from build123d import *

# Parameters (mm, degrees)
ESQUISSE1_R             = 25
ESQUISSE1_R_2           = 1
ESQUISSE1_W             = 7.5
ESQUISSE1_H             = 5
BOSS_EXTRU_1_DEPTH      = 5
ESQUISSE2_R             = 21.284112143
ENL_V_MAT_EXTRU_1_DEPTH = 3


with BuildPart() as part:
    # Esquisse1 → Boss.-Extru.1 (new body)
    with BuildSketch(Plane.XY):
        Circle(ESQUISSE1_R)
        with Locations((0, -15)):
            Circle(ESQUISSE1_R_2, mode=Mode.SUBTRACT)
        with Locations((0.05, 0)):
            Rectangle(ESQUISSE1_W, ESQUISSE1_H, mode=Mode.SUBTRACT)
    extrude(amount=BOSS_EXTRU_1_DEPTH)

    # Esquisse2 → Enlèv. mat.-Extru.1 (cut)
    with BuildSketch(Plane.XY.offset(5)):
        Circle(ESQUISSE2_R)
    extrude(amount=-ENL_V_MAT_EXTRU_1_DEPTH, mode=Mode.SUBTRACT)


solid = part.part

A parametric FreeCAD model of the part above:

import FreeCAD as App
import Part
import Sketcher
from FreeCAD import Vector
Q = App.Units.Quantity

doc = App.newDocument("Part")
body = doc.addObject("PartDesign::Body", "Body")

# Sketch on XY plane
sketch1 = body.newObject("Sketcher::SketchObject", "Sketch")
sketch1.AttachmentSupport = (doc.getObject("XY_Plane"), [""])
sketch1.MapMode = "FlatFace"
sketch1.addGeometry([
    Part.Circle(Vector(0, 0, 0), Vector(0, 0, 1), 25),  # 0
    Part.Circle(Vector(0, -15, 0), Vector(0, 0, 1), 1),  # 1
    Part.LineSegment(Vector(3.8, -2.5, 0), Vector(-3.7, -2.5, 0)),  # 2
    Part.LineSegment(Vector(-3.7, -2.5, 0), Vector(-3.7, 2.5, 0)),  # 3
    Part.LineSegment(Vector(-3.7, 2.5, 0), Vector(3.8, 2.5, 0)),  # 4
    Part.LineSegment(Vector(3.8, 2.5, 0), Vector(3.8, -2.5, 0)),  # 5
], False)
sketch1.addConstraint([
    Sketcher.Constraint("Coincident", 2, 2, 3, 1),
    Sketcher.Constraint("Coincident", 3, 2, 4, 1),
    Sketcher.Constraint("Coincident", 4, 2, 5, 1),
    Sketcher.Constraint("Coincident", 5, 2, 2, 1),
    Sketcher.Constraint("Horizontal", 2),
    Sketcher.Constraint("Vertical", 3),
    Sketcher.Constraint("Horizontal", 4),
    Sketcher.Constraint("Vertical", 5),
    Sketcher.Constraint("Coincident", 0, 3, -1, 1),
    Sketcher.Constraint("PointOnObject", 1, 3, -2),
    Sketcher.Constraint("Diameter", 0, Q("50 mm")),
    Sketcher.Constraint("Diameter", 1, Q("2 mm")),
    Sketcher.Constraint("DistanceY", 3, 1, 3, 2, Q("5 mm")),
    Sketcher.Constraint("DistanceX", 2, 2, 2, 1, Q("7.5 mm")),
    Sketcher.Constraint("DistanceY", 1, 3, -1, 1, Q("15 mm")),
    Sketcher.Constraint("DistanceX", 2, 2, -1, 1, Q("3.7 mm")),
    Sketcher.Constraint("DistanceY", 2, 2, -1, 1, Q("2.5 mm")),
])
pad1 = body.newObject("PartDesign::Pad", "Pad")
pad1.Profile = sketch1
pad1.Length = 5

# Sketch on XY plane
sketch2 = body.newObject("Sketcher::SketchObject", "Sketch001")
sketch2.AttachmentSupport = (doc.getObject("XY_Plane"), [""])
sketch2.MapMode = "FlatFace"
sketch2.AttachmentOffset = App.Placement(Vector(0, 0, 5), App.Rotation())
sketch2.addGeometry(Part.Circle(Vector(0, 0, 0), Vector(0, 0, 1), 21), False)
sketch2.addConstraint([
    Sketcher.Constraint("Coincident", 0, 3, -1, 1),
    Sketcher.Constraint("Diameter", 0, Q("42.568224 mm")),
])
pocket1 = body.newObject("PartDesign::Pocket", "Pocket")
pocket1.Profile = sketch2
pocket1.Length = 3

doc.recompute()
